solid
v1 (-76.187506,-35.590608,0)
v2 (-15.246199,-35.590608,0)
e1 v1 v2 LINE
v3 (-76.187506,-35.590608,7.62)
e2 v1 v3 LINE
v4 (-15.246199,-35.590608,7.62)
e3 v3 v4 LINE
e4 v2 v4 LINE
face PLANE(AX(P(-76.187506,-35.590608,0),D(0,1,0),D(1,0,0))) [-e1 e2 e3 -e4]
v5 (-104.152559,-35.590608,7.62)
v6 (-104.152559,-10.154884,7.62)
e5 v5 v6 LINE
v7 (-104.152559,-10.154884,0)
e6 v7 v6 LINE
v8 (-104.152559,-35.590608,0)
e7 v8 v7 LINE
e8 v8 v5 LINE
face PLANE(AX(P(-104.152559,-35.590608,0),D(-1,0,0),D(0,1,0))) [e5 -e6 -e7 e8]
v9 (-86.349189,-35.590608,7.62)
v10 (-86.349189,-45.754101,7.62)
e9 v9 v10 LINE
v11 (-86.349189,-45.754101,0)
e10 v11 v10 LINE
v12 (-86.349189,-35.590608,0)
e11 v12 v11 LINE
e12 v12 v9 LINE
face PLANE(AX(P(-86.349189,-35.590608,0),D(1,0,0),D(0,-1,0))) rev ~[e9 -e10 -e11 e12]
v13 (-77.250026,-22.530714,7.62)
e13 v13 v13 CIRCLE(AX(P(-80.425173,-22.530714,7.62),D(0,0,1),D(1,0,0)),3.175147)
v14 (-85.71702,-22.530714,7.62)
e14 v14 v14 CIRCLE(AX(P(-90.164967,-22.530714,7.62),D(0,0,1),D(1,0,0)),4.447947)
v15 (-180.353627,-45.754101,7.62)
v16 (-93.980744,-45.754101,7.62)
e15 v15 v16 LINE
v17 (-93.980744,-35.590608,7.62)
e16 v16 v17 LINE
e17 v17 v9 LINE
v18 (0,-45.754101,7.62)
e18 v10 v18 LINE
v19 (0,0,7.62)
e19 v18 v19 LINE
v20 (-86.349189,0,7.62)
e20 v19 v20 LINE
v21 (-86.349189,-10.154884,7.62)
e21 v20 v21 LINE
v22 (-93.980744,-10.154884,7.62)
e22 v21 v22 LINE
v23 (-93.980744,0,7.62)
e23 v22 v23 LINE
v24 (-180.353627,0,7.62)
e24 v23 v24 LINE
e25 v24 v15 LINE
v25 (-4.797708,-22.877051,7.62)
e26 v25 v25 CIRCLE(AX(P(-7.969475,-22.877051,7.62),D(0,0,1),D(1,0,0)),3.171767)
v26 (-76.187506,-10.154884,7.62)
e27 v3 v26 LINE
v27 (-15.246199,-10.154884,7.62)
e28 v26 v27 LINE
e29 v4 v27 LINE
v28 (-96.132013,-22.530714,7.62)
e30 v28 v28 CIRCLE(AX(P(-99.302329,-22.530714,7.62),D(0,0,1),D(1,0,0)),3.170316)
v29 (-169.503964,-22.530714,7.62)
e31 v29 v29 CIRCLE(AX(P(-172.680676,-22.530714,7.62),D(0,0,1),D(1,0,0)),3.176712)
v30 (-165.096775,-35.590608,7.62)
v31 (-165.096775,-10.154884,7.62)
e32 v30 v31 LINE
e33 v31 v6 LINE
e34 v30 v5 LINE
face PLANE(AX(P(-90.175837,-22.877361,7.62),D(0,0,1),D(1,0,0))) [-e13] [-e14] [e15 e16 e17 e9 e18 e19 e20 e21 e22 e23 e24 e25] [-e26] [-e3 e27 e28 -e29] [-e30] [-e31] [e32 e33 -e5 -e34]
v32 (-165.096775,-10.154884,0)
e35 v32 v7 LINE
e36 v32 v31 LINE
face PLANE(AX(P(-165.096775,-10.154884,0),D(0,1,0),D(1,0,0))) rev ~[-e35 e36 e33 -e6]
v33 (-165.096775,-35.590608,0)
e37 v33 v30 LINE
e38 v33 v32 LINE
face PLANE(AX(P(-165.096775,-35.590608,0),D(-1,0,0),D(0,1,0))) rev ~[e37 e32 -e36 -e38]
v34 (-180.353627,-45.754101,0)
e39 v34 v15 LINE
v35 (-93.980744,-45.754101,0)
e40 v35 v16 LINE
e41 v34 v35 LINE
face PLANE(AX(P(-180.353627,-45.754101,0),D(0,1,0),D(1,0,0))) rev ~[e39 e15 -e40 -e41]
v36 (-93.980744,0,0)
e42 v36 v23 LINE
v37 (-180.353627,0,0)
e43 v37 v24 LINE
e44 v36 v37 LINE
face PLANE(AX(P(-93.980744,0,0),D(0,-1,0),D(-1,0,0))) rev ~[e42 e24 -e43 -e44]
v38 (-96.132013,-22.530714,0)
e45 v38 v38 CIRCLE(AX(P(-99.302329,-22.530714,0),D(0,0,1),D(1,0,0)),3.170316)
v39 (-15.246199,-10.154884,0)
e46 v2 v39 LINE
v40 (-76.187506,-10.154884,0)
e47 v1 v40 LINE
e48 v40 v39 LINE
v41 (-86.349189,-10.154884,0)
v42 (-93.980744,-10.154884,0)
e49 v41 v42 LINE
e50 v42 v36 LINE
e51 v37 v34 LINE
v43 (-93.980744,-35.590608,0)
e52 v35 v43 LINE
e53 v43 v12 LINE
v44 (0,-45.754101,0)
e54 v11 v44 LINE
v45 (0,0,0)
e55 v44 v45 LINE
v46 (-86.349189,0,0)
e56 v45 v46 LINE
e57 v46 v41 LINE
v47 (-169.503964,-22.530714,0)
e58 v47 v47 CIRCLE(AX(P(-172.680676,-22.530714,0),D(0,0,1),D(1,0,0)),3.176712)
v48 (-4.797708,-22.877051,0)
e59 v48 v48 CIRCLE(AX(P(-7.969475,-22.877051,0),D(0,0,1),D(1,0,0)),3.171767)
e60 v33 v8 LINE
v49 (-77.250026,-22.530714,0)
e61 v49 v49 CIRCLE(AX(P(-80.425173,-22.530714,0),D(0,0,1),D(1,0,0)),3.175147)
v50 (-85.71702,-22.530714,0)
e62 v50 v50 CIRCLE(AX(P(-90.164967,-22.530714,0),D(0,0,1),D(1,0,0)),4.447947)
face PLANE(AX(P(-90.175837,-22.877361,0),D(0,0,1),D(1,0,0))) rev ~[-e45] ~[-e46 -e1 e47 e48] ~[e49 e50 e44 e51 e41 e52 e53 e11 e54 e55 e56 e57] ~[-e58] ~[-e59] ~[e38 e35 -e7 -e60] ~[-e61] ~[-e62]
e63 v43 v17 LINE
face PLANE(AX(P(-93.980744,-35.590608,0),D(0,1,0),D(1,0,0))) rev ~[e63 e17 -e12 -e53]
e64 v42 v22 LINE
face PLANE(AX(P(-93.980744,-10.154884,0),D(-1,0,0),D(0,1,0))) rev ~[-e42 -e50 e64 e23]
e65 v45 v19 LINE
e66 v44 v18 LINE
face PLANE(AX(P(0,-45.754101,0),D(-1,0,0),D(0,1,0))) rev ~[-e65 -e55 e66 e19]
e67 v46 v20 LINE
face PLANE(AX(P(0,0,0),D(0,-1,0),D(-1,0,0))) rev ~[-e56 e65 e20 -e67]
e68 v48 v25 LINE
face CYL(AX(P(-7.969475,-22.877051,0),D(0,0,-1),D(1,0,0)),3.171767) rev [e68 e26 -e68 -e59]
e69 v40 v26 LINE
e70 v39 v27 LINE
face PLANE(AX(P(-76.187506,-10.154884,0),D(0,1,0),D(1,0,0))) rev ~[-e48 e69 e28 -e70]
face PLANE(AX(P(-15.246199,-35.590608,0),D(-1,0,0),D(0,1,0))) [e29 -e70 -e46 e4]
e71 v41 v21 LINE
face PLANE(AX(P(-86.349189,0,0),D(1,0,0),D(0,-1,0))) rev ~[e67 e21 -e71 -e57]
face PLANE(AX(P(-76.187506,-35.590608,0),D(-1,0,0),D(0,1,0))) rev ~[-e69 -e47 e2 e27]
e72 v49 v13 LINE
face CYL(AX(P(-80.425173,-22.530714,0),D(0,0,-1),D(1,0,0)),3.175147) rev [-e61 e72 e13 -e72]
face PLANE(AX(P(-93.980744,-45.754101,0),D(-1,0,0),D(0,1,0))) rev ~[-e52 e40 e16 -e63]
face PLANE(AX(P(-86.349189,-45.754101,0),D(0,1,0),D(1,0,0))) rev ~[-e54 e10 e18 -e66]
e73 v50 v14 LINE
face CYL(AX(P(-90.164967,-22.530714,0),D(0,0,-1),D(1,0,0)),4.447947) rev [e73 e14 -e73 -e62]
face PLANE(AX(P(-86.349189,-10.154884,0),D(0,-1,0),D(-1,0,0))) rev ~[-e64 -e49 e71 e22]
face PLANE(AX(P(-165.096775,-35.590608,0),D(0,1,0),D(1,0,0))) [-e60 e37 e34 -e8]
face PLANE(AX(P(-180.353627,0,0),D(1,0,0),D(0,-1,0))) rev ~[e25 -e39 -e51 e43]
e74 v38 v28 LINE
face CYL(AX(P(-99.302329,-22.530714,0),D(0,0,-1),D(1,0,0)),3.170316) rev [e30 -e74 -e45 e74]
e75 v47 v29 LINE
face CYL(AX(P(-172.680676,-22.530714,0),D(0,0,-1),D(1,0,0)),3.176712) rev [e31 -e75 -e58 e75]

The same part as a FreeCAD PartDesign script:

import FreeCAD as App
import Part
import Sketcher
from FreeCAD import Vector
Q = App.Units.Quantity


def add_polygon(sketch, points):
    """Adds a closed chain of lines whose ends are joined by coincident constraints."""
    first, n = sketch.GeometryCount, len(points)
    for a, b in zip(points, points[1:] + points[:1]):
        sketch.addGeometry(Part.LineSegment(App.Vector(*a, 0), App.Vector(*b, 0)), False)
    for i in range(n):
        sketch.addConstraint(Sketcher.Constraint("Coincident", first + i, 2, first + (i + 1) % n, 1))

doc = App.newDocument("Part")
body = doc.addObject("PartDesign::Body", "Body")

# Sketch on XY plane
sketch1 = body.newObject("Sketcher::SketchObject", "Sketch")
sketch1.AttachmentSupport = (doc.getObject("XY_Plane"), [""])
sketch1.MapMode = "FlatFace"
add_polygon(sketch1, [(0, 0), (-86.349189, 0), (-86.349189, -10.154884), (-93.980744, -10.154884), (-93.980744, 0), (-180.353627, 0), (-180.353627, -45.754101), (-93.980744, -45.754101), (-93.980744, -35.590608), (-86.349189, -35.590608), (-86.349189, -45.754101), (0, -45.754101)])  # lines 0-11
sketch1.addGeometry(Part.Circle(Vector(-7.969475, -22.877051, 0), Vector(0, 0, 1), 3.171767), False)  # 12
sketch1.addGeometry(Part.Circle(Vector(-172.680676, -22.530714, 0), Vector(0, 0, 1), 3.176712), False)  # 13
add_polygon(sketch1, [(-104.152559, -35.590608), (-165.096775, -35.590608), (-165.096775, -10.154884), (-104.152559, -10.154884)])  # lines 14-17
sketch1.addGeometry(Part.Circle(Vector(-99.302329, -22.530714, 0), Vector(0, 0, 1), 3.170316), False)  # 18
sketch1.addGeometry(Part.Circle(Vector(-90.164967, -22.530714, 0), Vector(0, 0, 1), 4.447947), False)  # 19
sketch1.addGeometry(Part.Circle(Vector(-80.425173, -22.530714, 0), Vector(0, 0, 1), 3.175147), False)  # 20
add_polygon(sketch1, [(-15.246199, -35.590608), (-76.187506, -35.590608), (-76.187506, -10.154884), (-15.246199, -10.154884)])  # lines 21-24
sketch1.addConstraint(Sketcher.Constraint("Horizontal", 0))
sketch1.addConstraint(Sketcher.Constraint("Vertical", 1))
sketch1.addConstraint(Sketcher.Constraint("Horizontal", 2))
sketch1.addConstraint(Sketcher.Constraint("Vertical", 3))
sketch1.addConstraint(Sketcher.Constraint("Horizontal", 4))
sketch1.addConstraint(Sketcher.Constraint("Vertical", 5))
sketch1.addConstraint(Sketcher.Constraint("Horizontal", 6))
sketch1.addConstraint(Sketcher.Constraint("Vertical", 7))
sketch1.addConstraint(Sketcher.Constraint("Horizontal", 8))
sketch1.addConstraint(Sketcher.Constraint("Vertical", 9))
sketch1.addConstraint(Sketcher.Constraint("Horizontal", 10))
sketch1.addConstraint(Sketcher.Constraint("Vertical", 11))
sketch1.addConstraint(Sketcher.Constraint("Horizontal", 14))
sketch1.addConstraint(Sketcher.Constraint("Vertical", 15))
sketch1.addConstraint(Sketcher.Constraint("Horizontal", 16))
sketch1.addConstraint(Sketcher.Constraint("Vertical", 17))
sketch1.addConstraint(Sketcher.Constraint("Horizontal", 21))
sketch1.addConstraint(Sketcher.Constraint("Vertical", 22))
sketch1.addConstraint(Sketcher.Constraint("Horizontal", 23))
sketch1.addConstraint(Sketcher.Constraint("Vertical", 24))
sketch1.addConstraint(Sketcher.Constraint("Coincident", 11, 2, -1, 1))
sketch1.addConstraint(Sketcher.Constraint("PointOnObject", 3, 2, -1))
sketch1.addConstraint(Sketcher.Constraint("Horizontal", 13, 3, 18, 3))
sketch1.addConstraint(Sketcher.Constraint("Horizontal", 18, 3, 19, 3))
sketch1.addConstraint(Sketcher.Constraint("Horizontal", 19, 3, 20, 3))
sketch1.addConstraint(Sketcher.Constraint("Horizontal", 6, 2, 9, 2))
sketch1.addConstraint(Sketcher.Constraint("Horizontal", 8, 2, 14, 2))
sketch1.addConstraint(Sketcher.Constraint("Horizontal", 2, 2, 15, 2))
sketch1.addConstraint(Sketcher.Constraint("Horizontal", 17, 2, 21, 2))
sketch1.addConstraint(Sketcher.Constraint("Horizontal", 16, 2, 22, 2))
sketch1.addConstraint(Sketcher.Constraint("Vertical", 3, 2, 6, 2))
sketch1.addConstraint(Sketcher.Constraint("Vertical", 1, 2, 8, 2))
sketch1.addConstraint(Sketcher.Constraint("Diameter", 12, Q("6.343534 mm")))
sketch1.addConstraint(Sketcher.Constraint("Diameter", 13, Q("6.353424 mm")))
sketch1.addConstraint(Sketcher.Constraint("Diameter", 18, Q("6.340632 mm")))
sketch1.addConstraint(Sketcher.Constraint("Diameter", 19, Q("8.895894 mm")))
sketch1.addConstraint(Sketcher.Constraint("Diameter", 20, Q("6.350294 mm")))
sketch1.addConstraint(Sketcher.Constraint("DistanceY", 5, 2, 5, 1, Q("45.754101 mm")))
sketch1.addConstraint(Sketcher.Constraint("DistanceX", 0, 2, 0, 1, Q("86.349189 mm")))
sketch1.addConstraint(Sketcher.Constraint("DistanceX", 23, 2, -1, 1, Q("15.246199 mm")))
sketch1.addConstraint(Sketcher.Constraint("DistanceX", 13, 3, 12, 3, Q("164.711201 mm")))
sketch1.addConstraint(Sketcher.Constraint("DistanceX", 20, 3, 12, 3, Q("72.455698 mm")))
sketch1.addConstraint(Sketcher.Constraint("DistanceX", 13, 3, 14, 2, Q("7.583901 mm")))
sketch1.addConstraint(Sketcher.Constraint("DistanceX", 2, 2, 2, 1, Q("7.631555 mm")))
sketch1.addConstraint(Sketcher.Constraint("DistanceX", 4, 2, 4, 1, Q("86.372883 mm")))
sketch1.addConstraint(Sketcher.Constraint("DistanceX", 14, 2, 14, 1, Q("60.944215 mm")))
sketch1.addConstraint(Sketcher.Constraint("DistanceX", 21, 2, 21, 1, Q("60.941307 mm")))
sketch1.addConstraint(Sketcher.Constraint("DistanceY", 1, 2, 1, 1, Q("10.154884 mm")))
sketch1.addConstraint(Sketcher.Constraint("DistanceY", 7, 1, 7, 2, Q("10.163493 mm")))
sketch1.addConstraint(Sketcher.Constraint("DistanceY", 12, 3, -1, 1, Q("22.877051 mm")))
sketch1.addConstraint(Sketcher.Constraint("DistanceX", 18, 3, -1, 1, Q("99.302329 mm")))
sketch1.addConstraint(Sketcher.Constraint("DistanceX", 16, 2, -1, 1, Q("104.152559 mm")))
sketch1.addConstraint(Sketcher.Constraint("DistanceX", 18, 3, 19, 3, Q("9.137362 mm")))
sketch1.addConstraint(Sketcher.Constraint("DistanceY", 19, 3, 1, 2, Q("12.37583 mm")))
pad1 = body.newObject("PartDesign::Pad", "Pad")
pad1.Profile = sketch1
pad1.Length = Q("0.3 in")

doc.recompute()
